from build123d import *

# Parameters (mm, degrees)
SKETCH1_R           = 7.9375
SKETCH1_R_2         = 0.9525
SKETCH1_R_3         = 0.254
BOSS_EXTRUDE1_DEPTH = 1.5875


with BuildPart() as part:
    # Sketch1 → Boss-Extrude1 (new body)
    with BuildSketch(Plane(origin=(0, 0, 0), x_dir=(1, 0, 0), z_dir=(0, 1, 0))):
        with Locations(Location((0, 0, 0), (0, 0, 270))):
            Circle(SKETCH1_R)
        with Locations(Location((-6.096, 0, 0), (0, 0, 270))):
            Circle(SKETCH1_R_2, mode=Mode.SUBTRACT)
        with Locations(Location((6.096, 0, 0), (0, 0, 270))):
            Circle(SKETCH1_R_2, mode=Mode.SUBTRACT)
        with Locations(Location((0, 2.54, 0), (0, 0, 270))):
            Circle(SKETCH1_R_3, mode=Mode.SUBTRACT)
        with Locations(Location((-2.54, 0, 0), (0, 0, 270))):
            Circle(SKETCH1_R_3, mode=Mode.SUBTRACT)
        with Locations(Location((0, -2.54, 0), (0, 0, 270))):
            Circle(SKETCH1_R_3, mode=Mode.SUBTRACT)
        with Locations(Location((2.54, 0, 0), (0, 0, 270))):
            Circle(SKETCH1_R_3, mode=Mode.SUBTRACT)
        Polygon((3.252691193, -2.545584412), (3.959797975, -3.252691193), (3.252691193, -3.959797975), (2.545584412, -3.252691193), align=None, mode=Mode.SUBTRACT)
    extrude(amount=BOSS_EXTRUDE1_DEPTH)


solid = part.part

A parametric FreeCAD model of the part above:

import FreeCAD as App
import Part
import Sketcher

V = App.Vector
Q = App.Units.Quantity

doc = App.newDocument("Part")
body = doc.addObject("PartDesign::Body", "Body")

# Sketch on XZ plane
sketch1 = body.newObject("Sketcher::SketchObject", "Sketch")
sketch1.AttachmentSupport = (doc.getObject("XZ_Plane"), [""])
sketch1.MapMode = "FlatFace"
sketch1.addGeometry([
    Part.Circle(V(0, 0, 0), V(0, 0, 1), 7.94),  # 0
    Part.Circle(V(-6.1, 0, 0), V(0, 0, 1), 0.95),  # 1
    Part.Circle(V(-2.54, 0, 0), V(0, 0, 1), 0.25),  # 2
    Part.Circle(V(0, -2.54, 0), V(0, 0, 1), 0.25),  # 3
    Part.Circle(V(2.54, 0, 0), V(0, 0, 1), 0.25),  # 4
    Part.Circle(V(6.1, 0, 0), V(0, 0, 1), 0.95),  # 5
    Part.Circle(V(0, 2.54, 0), V(0, 0, 1), 0.25),  # 6
    Part.LineSegment(V(2.55, 3.25, 0), V(3.25, 2.55, 0)),  # 7
    Part.LineSegment(V(3.25, 2.55, 0), V(3.96, 3.25, 0)),  # 8
    Part.LineSegment(V(3.96, 3.25, 0), V(3.25, 3.96, 0)),  # 9
    Part.LineSegment(V(3.25, 3.96, 0), V(2.55, 3.25, 0)),  # 10
], False)
sketch1.addConstraint([
    Sketcher.Constraint("Coincident", 7, 2, 8, 1),
    Sketcher.Constraint("Coincident", 8, 2, 9, 1),
    Sketcher.Constraint("Coincident", 9, 2, 10, 1),
    Sketcher.Constraint("Coincident", 10, 2, 7, 1),
    Sketcher.Constraint("Coincident", 0, 3, -1, 1),
    Sketcher.Constraint("Equal", 2, 3),
    Sketcher.Constraint("Equal", 3, 4),
    Sketcher.Constraint("Equal", 1, 5),
    Sketcher.Constraint("Equal", 4, 6),
    Sketcher.Constraint("Symmetric", 2, 3, 4, 3, -1, 1),
    Sketcher.Constraint("Symmetric", 1, 3, 5, 3, -1, 1),
    Sketcher.Constraint("Symmetric", 3, 3, 6, 3, -1, 1),
    Sketcher.Constraint("PointOnObject", 1, 3, -1),
    Sketcher.Constraint("PointOnObject", 2, 3, -1),
    Sketcher.Constraint("PointOnObject", 3, 3, -2),
    Sketcher.Constraint("Perpendicular", 7, 8),
    Sketcher.Constraint("Perpendicular", 8, 9),
    Sketcher.Constraint("Perpendicular", 9, 10),
    Sketcher.Constraint("Horizontal", 8, 2, 10, 2),
    Sketcher.Constraint("Vertical", 7, 2, 9, 2),
    Sketcher.Constraint("Diameter", 2, Q("0.02 in")),
    Sketcher.Constraint("Diameter", 0, Q("0.625 in")),
    Sketcher.Constraint("Diameter", 1, Q("0.075 in")),
    Sketcher.Constraint("DistanceX", 2, 3, -1, 1, Q("0.1 in")),
    Sketcher.Constraint("DistanceY", 3, 3, -1, 1, Q("0.1 in")),
    Sketcher.Constraint("DistanceX", 1, 3, -1, 1, Q("0.24 in")),
    Sketcher.Constraint("Distance", 7, Q("1 mm")),
    Sketcher.Constraint("DistanceX", -1, 1, 7, 2, Q("3.252691 mm")),
    Sketcher.Constraint("DistanceY", -1, 1, 8, 2, Q("3.252691 mm")),
])
pad1 = body.newObject("PartDesign::Pad", "Pad")
pad1.Profile = sketch1
pad1.Length = Q("0.0625 in")
pad1.Reversed = True

doc.recompute()
